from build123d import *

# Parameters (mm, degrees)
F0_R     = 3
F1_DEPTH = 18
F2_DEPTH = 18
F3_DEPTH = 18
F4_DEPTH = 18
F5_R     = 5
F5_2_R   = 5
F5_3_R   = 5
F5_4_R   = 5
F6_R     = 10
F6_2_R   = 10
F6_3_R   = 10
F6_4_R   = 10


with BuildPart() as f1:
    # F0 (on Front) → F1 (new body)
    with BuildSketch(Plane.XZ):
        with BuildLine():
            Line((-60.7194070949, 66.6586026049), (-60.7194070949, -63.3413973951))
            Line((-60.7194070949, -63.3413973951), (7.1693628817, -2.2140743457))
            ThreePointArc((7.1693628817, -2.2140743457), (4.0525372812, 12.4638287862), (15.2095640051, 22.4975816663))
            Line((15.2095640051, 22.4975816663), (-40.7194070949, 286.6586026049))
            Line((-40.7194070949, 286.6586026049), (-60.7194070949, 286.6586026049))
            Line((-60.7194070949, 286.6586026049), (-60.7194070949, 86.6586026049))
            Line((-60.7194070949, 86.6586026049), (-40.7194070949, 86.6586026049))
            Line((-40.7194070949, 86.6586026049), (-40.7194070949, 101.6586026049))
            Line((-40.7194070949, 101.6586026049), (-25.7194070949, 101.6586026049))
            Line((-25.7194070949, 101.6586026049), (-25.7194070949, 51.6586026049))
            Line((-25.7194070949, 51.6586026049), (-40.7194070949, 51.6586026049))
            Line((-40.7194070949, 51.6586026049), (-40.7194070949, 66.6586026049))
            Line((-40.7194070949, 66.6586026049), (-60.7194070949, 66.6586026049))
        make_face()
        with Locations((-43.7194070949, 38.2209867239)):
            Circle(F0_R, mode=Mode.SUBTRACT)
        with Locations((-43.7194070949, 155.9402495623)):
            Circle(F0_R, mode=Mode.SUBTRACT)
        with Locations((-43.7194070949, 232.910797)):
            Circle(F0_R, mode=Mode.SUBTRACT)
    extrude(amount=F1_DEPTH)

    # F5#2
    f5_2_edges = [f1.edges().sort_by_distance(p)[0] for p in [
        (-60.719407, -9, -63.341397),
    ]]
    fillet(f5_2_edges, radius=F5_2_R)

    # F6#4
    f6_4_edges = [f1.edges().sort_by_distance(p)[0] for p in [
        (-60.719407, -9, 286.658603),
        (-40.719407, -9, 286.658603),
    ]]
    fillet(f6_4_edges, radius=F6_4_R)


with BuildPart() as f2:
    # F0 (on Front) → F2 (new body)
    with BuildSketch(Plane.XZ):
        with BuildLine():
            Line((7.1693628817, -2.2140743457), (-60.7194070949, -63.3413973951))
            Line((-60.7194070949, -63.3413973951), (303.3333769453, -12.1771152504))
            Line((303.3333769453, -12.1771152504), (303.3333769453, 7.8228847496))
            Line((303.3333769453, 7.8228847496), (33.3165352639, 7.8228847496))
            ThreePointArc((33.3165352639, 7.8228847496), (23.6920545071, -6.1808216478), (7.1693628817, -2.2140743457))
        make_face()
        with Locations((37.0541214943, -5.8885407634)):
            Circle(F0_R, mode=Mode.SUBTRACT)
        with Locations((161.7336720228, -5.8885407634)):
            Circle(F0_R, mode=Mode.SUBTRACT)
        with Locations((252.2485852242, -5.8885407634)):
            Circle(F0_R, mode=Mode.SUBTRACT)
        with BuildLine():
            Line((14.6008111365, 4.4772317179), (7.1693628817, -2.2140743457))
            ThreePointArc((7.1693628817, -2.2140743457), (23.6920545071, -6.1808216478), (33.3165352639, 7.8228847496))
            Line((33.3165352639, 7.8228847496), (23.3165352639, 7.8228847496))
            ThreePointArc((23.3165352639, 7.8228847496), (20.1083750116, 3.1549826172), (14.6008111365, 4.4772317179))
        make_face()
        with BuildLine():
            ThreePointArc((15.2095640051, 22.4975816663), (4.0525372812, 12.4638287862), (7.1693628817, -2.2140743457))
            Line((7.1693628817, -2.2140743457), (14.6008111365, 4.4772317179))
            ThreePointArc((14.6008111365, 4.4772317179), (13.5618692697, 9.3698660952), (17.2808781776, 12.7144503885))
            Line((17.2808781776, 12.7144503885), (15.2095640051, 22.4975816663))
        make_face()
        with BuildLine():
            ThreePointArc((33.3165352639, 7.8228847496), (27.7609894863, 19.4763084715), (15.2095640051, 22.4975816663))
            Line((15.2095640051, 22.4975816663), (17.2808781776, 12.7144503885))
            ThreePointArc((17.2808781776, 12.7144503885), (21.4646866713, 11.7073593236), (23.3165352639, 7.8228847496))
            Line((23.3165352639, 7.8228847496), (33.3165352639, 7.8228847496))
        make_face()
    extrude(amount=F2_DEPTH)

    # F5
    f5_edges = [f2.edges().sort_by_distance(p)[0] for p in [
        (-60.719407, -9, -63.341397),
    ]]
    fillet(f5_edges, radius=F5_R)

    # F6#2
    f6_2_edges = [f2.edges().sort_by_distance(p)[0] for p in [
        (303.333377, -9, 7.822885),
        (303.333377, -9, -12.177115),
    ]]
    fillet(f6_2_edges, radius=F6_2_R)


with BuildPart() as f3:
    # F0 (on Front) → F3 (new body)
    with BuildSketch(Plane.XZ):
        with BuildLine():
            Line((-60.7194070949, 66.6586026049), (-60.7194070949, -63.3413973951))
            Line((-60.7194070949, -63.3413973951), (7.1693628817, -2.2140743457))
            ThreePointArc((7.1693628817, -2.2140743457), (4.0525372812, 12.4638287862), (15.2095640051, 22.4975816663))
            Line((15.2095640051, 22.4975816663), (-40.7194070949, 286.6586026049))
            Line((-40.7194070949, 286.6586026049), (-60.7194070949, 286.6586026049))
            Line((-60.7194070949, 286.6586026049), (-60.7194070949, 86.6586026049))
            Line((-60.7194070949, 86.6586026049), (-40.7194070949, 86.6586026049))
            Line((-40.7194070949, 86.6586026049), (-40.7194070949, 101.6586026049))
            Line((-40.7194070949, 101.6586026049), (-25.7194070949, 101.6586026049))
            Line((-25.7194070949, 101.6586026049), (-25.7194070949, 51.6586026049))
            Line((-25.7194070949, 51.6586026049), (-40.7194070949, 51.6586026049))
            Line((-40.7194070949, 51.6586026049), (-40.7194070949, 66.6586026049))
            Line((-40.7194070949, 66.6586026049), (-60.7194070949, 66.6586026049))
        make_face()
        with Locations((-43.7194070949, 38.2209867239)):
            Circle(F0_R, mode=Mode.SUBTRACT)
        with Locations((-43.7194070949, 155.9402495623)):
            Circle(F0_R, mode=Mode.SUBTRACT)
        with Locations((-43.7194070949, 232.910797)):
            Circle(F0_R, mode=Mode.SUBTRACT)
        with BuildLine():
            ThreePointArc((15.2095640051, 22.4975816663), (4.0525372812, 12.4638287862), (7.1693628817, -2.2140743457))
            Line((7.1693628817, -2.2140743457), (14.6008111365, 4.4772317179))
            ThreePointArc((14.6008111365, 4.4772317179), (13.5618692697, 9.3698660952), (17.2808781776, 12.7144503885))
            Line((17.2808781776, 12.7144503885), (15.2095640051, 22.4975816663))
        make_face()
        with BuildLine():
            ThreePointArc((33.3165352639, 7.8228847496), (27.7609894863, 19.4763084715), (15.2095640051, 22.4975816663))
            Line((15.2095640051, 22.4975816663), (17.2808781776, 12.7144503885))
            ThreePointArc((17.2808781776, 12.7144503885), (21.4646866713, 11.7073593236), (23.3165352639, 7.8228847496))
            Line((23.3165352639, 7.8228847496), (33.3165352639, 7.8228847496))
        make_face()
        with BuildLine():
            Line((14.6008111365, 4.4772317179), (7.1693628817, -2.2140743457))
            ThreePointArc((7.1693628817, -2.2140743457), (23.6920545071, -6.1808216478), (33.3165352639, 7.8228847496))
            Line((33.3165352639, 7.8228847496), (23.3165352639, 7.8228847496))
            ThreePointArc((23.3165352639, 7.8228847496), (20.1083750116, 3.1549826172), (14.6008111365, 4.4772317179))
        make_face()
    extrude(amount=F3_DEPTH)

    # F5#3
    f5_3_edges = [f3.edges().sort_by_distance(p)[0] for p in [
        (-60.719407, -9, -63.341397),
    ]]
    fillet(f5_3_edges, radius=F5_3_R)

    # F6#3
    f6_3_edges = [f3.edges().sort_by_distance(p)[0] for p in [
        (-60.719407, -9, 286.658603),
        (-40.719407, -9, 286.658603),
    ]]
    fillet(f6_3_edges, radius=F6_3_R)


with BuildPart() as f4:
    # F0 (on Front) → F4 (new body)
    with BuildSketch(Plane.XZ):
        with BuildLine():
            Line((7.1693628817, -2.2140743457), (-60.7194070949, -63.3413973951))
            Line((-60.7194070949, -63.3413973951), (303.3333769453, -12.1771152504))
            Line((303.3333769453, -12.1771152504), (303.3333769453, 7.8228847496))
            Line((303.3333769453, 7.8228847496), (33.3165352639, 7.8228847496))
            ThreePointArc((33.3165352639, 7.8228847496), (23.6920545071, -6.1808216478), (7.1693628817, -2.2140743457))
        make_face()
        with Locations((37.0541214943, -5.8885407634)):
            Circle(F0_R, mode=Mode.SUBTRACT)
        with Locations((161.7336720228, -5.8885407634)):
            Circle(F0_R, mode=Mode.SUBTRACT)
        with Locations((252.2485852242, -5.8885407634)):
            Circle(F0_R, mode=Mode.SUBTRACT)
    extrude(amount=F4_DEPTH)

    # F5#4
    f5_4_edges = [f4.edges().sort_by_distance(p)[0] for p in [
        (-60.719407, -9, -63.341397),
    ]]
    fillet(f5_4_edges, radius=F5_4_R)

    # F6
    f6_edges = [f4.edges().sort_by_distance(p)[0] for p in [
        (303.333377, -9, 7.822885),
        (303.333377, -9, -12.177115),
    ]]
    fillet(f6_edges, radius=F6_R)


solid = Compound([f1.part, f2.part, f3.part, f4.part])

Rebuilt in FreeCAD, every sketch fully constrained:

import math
import FreeCAD as App
import Part
import Sketcher

V = App.Vector
Q = App.Units.Quantity


def edges_at(feature, points):
    """Names of the edges that pass closest to the given points."""
    edges = feature.Shape.Edges
    near = lambda p: min(range(len(edges)), key=lambda i: edges[i].distToShape(Part.Vertex(*p))[0])
    return sorted({f"Edge{near(p) + 1}" for p in points})

doc = App.newDocument("Part")
body = doc.addObject("PartDesign::Body", "Body")

sketch1 = doc.addObject("Sketcher::SketchObject", "Sketch")
body.addObject(sketch1)
sketch1.AttachmentSupport = (doc.XZ_Plane, [""])
sketch1.MapMode = "FlatFace"
sketch1.addGeometry([
    Part.LineSegment(V(-60.7, 66.7, 0), V(-60.7, -63.3, 0)),
    Part.LineSegment(V(-60.7, -63.3, 0), V(7.2, -2.2, 0)),
    Part.ArcOfCircle(Part.Circle(V(18.3, 7.8, 0), V(0, 0, 1), 15), math.radians(102), math.radians(222)),
    Part.LineSegment(V(15.2, 22.5, 0), V(-40.7, 286.7, 0)),
    Part.LineSegment(V(-40.7, 286.7, 0), V(-60.7, 286.7, 0)),
    Part.LineSegment(V(-60.7, 286.7, 0), V(-60.7, 86.7, 0)),
    Part.LineSegment(V(-60.7, 86.7, 0), V(-40.7, 86.7, 0)),
    Part.LineSegment(V(-40.7, 86.7, 0), V(-40.7, 101.7, 0)),
    Part.LineSegment(V(-40.7, 101.7, 0), V(-25.7, 101.7, 0)),
    Part.LineSegment(V(-25.7, 101.7, 0), V(-25.7, 51.7, 0)),
    Part.LineSegment(V(-25.7, 51.7, 0), V(-40.7, 51.7, 0)),
    Part.LineSegment(V(-40.7, 51.7, 0), V(-40.7, 66.7, 0)),
    Part.LineSegment(V(-40.7, 66.7, 0), V(-60.7, 66.7, 0)),
    Part.Circle(V(-43.7, 38.2, 0), V(0, 0, 1), 3),
    Part.Circle(V(-43.7, 155.9, 0), V(0, 0, 1), 3),
    Part.Circle(V(-43.7, 232.9, 0), V(0, 0, 1), 3),
], False)
sketch1.addConstraint([
    Sketcher.Constraint("Coincident", 0, 2, 1, 1),
    Sketcher.Constraint("Coincident", 1, 2, 2, 2),
    Sketcher.Constraint("Coincident", 2, 1, 3, 1),
    Sketcher.Constraint("Coincident", 3, 2, 4, 1),
    Sketcher.Constraint("Coincident", 4, 2, 5, 1),
    Sketcher.Constraint("Coincident", 5, 2, 6, 1),
    Sketcher.Constraint("Coincident", 6, 2, 7, 1),
    Sketcher.Constraint("Coincident", 7, 2, 8, 1),
    Sketcher.Constraint("Coincident", 8, 2, 9, 1),
    Sketcher.Constraint("Coincident", 9, 2, 10, 1),
    Sketcher.Constraint("Coincident", 10, 2, 11, 1),
    Sketcher.Constraint("Coincident", 11, 2, 12, 1),
    Sketcher.Constraint("Coincident", 12, 2, 0, 1),
    Sketcher.Constraint("Vertical", 0),
    Sketcher.Constraint("Horizontal", 4),
    Sketcher.Constraint("Vertical", 5),
    Sketcher.Constraint("Horizontal", 6),
    Sketcher.Constraint("Vertical", 7),
    Sketcher.Constraint("Horizontal", 8),
    Sketcher.Constraint("Vertical", 9),
    Sketcher.Constraint("Horizontal", 10),
    Sketcher.Constraint("Vertical", 11),
    Sketcher.Constraint("Horizontal", 12),
    Sketcher.Constraint("Equal", 13, 14),
    Sketcher.Constraint("Equal", 14, 15),
    Sketcher.Constraint("Vertical", 13, 3, 14, 3),
    Sketcher.Constraint("Vertical", 14, 3, 15, 3),
    Sketcher.Constraint("Vertical", 0, 2, 4, 2),
    Sketcher.Constraint("Vertical", 3, 2, 6, 2),
    Sketcher.Constraint("Vertical", 7, 2, 10, 2),
    Sketcher.Constraint("Equal", 10, 7),
    Sketcher.Constraint("Equal", 7, 11),
    Sketcher.Constraint("Diameter", 13, 6.0),
    Sketcher.Constraint("Radius", 2, 15.0),
    Sketcher.Constraint("DistanceX", 4, 2, 4, 1, 20.0),
    Sketcher.Constraint("DistanceX", 8, 1, 8, 2, 15.0),
    Sketcher.Constraint("DistanceY", 0, 2, 0, 1, 130.0),
    Sketcher.Constraint("DistanceY", 5, 2, 5, 1, 200.0),
    Sketcher.Constraint("DistanceY", 9, 2, 9, 1, 50.0),
    Sketcher.Constraint("Angle", 1, Q("42 deg")),
    Sketcher.Constraint("DistanceX", 0, 2, 13, 3, 17.0),
    Sketcher.Constraint("DistanceY", 2, 3, 13, 3, 30.398102),
    Sketcher.Constraint("DistanceX", 1, 2, 2, 1, 8.040201),
    Sketcher.Constraint("Distance", 1, 91.353351),
    Sketcher.Constraint("Distance", 3, 270.016842),
    Sketcher.Constraint("DistanceY", -1, 1, 14, 3, 155.94025),
    Sketcher.Constraint("DistanceY", -1, 1, 2, 1, 22.497582),
    Sketcher.Constraint("DistanceY", 13, 3, 15, 3, 194.68981),
    Sketcher.Constraint("DistanceX", -1, 1, 2, 3, 18.316535),
])
pad1 = doc.addObject("PartDesign::Pad", "Pad")
body.addObject(pad1)
pad1.Profile = sketch1
pad1.Length = 18
doc.recompute()

fillet = doc.addObject("PartDesign::Fillet", "Fillet")
body.addObject(fillet)
fillet.Base = (pad1, edges_at(pad1, [(-60.719, -9, -63.341)]))
fillet.Radius = 5
doc.recompute()

fillet2 = doc.addObject("PartDesign::Fillet", "Fillet001")
body.addObject(fillet2)
fillet2.Base = (fillet, edges_at(fillet, [(-60.719, -9, 286.659), (-40.719, -9, 286.659)]))
fillet2.Radius = 10
body2 = doc.addObject("PartDesign::Body", "Body001")

sketch2 = doc.addObject("Sketcher::SketchObject", "Sketch001")
body2.addObject(sketch2)
sketch2.AttachmentSupport = (doc.getObject("XZ_Plane001"), [""])
sketch2.MapMode = "FlatFace"
sketch2.addGeometry([
    Part.LineSegment(V(7.2, -2.2, 0), V(-60.7, -63.3, 0)),
    Part.LineSegment(V(-60.7, -63.3, 0), V(303.3, -12.2, 0)),
    Part.LineSegment(V(303.3, -12.2, 0), V(303.3, 7.8, 0)),
    Part.LineSegment(V(303.3, 7.8, 0), V(33.3, 7.8, 0)),
    Part.ArcOfCircle(Part.Circle(V(18.3, 7.8, 0), V(0, 0, 1), 15), math.radians(0), math.radians(102)),
    Part.ArcOfCircle(Part.Circle(V(18.3, 7.8, 0), V(0, 0, 1), 15), math.radians(102), math.radians(222)),
    Part.ArcOfCircle(Part.Circle(V(18.3, 7.8, 0), V(0, 0, 1), 5), math.radians(-138), math.radians(0)),
    Part.ArcOfCircle(Part.Circle(V(18.3, 7.8, 0), V(0, 0, 1), 5), math.radians(102), math.radians(222)),
    Part.ArcOfCircle(Part.Circle(V(18.3, 7.8, 0), V(0, 0, 1), 5), math.radians(0), math.radians(102)),
    Part.Circle(V(37.1, -5.9, 0), V(0, 0, 1), 3),
    Part.Circle(V(161.7, -5.9, 0), V(0, 0, 1), 3),
    Part.Circle(V(252.2, -5.9, 0), V(0, 0, 1), 3),
], False)
sketch2.addConstraint([
    Sketcher.Constraint("Coincident", 0, 2, 1, 1),
    Sketcher.Constraint("Coincident", 1, 2, 2, 1),
    Sketcher.Constraint("Coincident", 2, 2, 3, 1),
    Sketcher.Constraint("Coincident", 3, 2, 4, 1),
    Sketcher.Constraint("Tangent", 4, 2, 5, 1),
    Sketcher.Constraint("Coincident", 5, 2, 0, 1),
    Sketcher.Constraint("Tangent", 6, 1, 7, 2),
    Sketcher.Constraint("Tangent", 7, 1, 8, 2),
    Sketcher.Constraint("Tangent", 8, 1, 6, 2),
    Sketcher.Constraint("Vertical", 2),
    Sketcher.Constraint("Horizontal", 3),
    Sketcher.Constraint("Coincident", 6, 3, 4, 3),
    Sketcher.Constraint("Equal", 4, 5),
    Sketcher.Constraint("Equal", 9, 10),
    Sketcher.Constraint("Equal", 10, 11),
    Sketcher.Constraint("Horizontal", 9, 3, 10, 3),
    Sketcher.Constraint("Horizontal", 10, 3, 11, 3),
    Sketcher.Constraint("Horizontal", 8, 3, 2, 2),
    Sketcher.Constraint("Horizontal", 3, 2, 8, 1),
    Sketcher.Constraint("Diameter", 9, 6.0),
    Sketcher.Constraint("Radius", 4, 15.0),
    Sketcher.Constraint("Radius", 6, 5.0),
    Sketcher.Constraint("DistanceY", 2, 1, 2, 2, 20.0),
    Sketcher.Constraint("Angle", 0, Q("-138 deg")),
    Sketcher.Constraint("Angle", 1, Q("8 deg")),
    Sketcher.Constraint("DistanceX", 3, 2, 3, 1, 270.016842),
    Sketcher.Constraint("Distance", 0, 91.353351),
    Sketcher.Constraint("DistanceX", -1, 1, 9, 3, 37.054121),
    Sketcher.Constraint("DistanceY", 9, 3, -1, 1, 5.888541),
    Sketcher.Constraint("DistanceY", -1, 1, 4, 2, 22.497582),
    Sketcher.Constraint("DistanceX", -1, 1, 6, 1, 14.600811),
    Sketcher.Constraint("DistanceY", -1, 1, 6, 1, 4.477232),
    Sketcher.Constraint("DistanceX", -1, 1, 7, 1, 17.280878),
    Sketcher.Constraint("DistanceY", -1, 1, 7, 1, 12.71445),
    Sketcher.Constraint("DistanceX", 9, 3, 10, 3, 124.679551),
    Sketcher.Constraint("DistanceX", 4, 3, 11, 3, 233.93205),
])
pad2 = doc.addObject("PartDesign::Pad", "Pad001")
body2.addObject(pad2)
pad2.Profile = sketch2
pad2.Length = 18
doc.recompute()

fillet3 = doc.addObject("PartDesign::Fillet", "Fillet002")
body2.addObject(fillet3)
fillet3.Base = (pad2, edges_at(pad2, [(-60.719, -9, -63.341)]))
fillet3.Radius = 5
doc.recompute()

fillet4 = doc.addObject("PartDesign::Fillet", "Fillet003")
body2.addObject(fillet4)
fillet4.Base = (fillet3, edges_at(fillet3, [(303.333, -9, 7.823), (303.333, -9, -12.177)]))
fillet4.Radius = 10
body3 = doc.addObject("PartDesign::Body", "Body002")

sketch3 = doc.addObject("Sketcher::SketchObject", "Sketch002")
body3.addObject(sketch3)
sketch3.AttachmentSupport = (doc.getObject("XZ_Plane002"), [""])
sketch3.MapMode = "FlatFace"
sketch3.addGeometry([
    Part.LineSegment(V(-60.7, 66.7, 0), V(-60.7, -63.3, 0)),
    Part.LineSegment(V(-60.7, -63.3, 0), V(7.2, -2.2, 0)),
    Part.ArcOfCircle(Part.Circle(V(18.3, 7.8, 0), V(0, 0, 1), 15), math.radians(-138), math.radians(0)),
    Part.ArcOfCircle(Part.Circle(V(18.3, 7.8, 0), V(0, 0, 1), 15), math.radians(0), math.radians(102)),
    Part.LineSegment(V(15.2, 22.5, 0), V(-40.7, 286.7, 0)),
    Part.LineSegment(V(-40.7, 286.7, 0), V(-60.7, 286.7, 0)),
    Part.LineSegment(V(-60.7, 286.7, 0), V(-60.7, 86.7, 0)),
    Part.LineSegment(V(-60.7, 86.7, 0), V(-40.7, 86.7, 0)),
    Part.LineSegment(V(-40.7, 86.7, 0), V(-40.7, 101.7, 0)),
    Part.LineSegment(V(-40.7, 101.7, 0), V(-25.7, 101.7, 0)),
    Part.LineSegment(V(-25.7, 101.7, 0), V(-25.7, 51.7, 0)),
    Part.LineSegment(V(-25.7, 51.7, 0), V(-40.7, 51.7, 0)),
    Part.LineSegment(V(-40.7, 51.7, 0), V(-40.7, 66.7, 0)),
    Part.LineSegment(V(-40.7, 66.7, 0), V(-60.7, 66.7, 0)),
    Part.ArcOfCircle(Part.Circle(V(18.3, 7.8, 0), V(0, 0, 1), 5), math.radians(102), math.radians(222)),
    Part.ArcOfCircle(Part.Circle(V(18.3, 7.8, 0), V(0, 0, 1), 5), math.radians(0), math.radians(102)),
    Part.ArcOfCircle(Part.Circle(V(18.3, 7.8, 0), V(0, 0, 1), 5), math.radians(-138), math.radians(0)),
    Part.Circle(V(-43.7, 38.2, 0), V(0, 0, 1), 3),
    Part.Circle(V(-43.7, 155.9, 0), V(0, 0, 1), 3),
    Part.Circle(V(-43.7, 232.9, 0), V(0, 0, 1), 3),
], False)
sketch3.addConstraint([
    Sketcher.Constraint("Coincident", 0, 2, 1, 1),
    Sketcher.Constraint("Coincident", 1, 2, 2, 1),
    Sketcher.Constraint("Tangent", 2, 2, 3, 1),
    Sketcher.Constraint("Coincident", 3, 2, 4, 1),
    Sketcher.Constraint("Coincident", 4, 2, 5, 1),
    Sketcher.Constraint("Coincident", 5, 2, 6, 1),
    Sketcher.Constraint("Coincident", 6, 2, 7, 1),
    Sketcher.Constraint("Coincident", 7, 2, 8, 1),
    Sketcher.Constraint("Coincident", 8, 2, 9, 1),
    Sketcher.Constraint("Coincident", 9, 2, 10, 1),
    Sketcher.Constraint("Coincident", 10, 2, 11, 1),
    Sketcher.Constraint("Coincident", 11, 2, 12, 1),
    Sketcher.Constraint("Coincident", 12, 2, 13, 1),
    Sketcher.Constraint("Coincident", 13, 2, 0, 1),
    Sketcher.Constraint("Tangent", 14, 1, 15, 2),
    Sketcher.Constraint("Tangent", 15, 1, 16, 2),
    Sketcher.Constraint("Tangent", 16, 1, 14, 2),
    Sketcher.Constraint("Vertical", 0),
    Sketcher.Constraint("Horizontal", 5),
    Sketcher.Constraint("Vertical", 6),
    Sketcher.Constraint("Horizontal", 7),
    Sketcher.Constraint("Vertical", 8),
    Sketcher.Constraint("Horizontal", 9),
    Sketcher.Constraint("Vertical", 10),
    Sketcher.Constraint("Horizontal", 11),
    Sketcher.Constraint("Vertical", 12),
    Sketcher.Constraint("Horizontal", 13),
    Sketcher.Constraint("Coincident", 14, 3, 2, 3),
    Sketcher.Constraint("Equal", 2, 3),
    Sketcher.Constraint("Equal", 17, 18),
    Sketcher.Constraint("Equal", 18, 19),
    Sketcher.Constraint("Horizontal", 16, 3, 2, 2),
    Sketcher.Constraint("Horizontal", 2, 2, 15, 1),
    Sketcher.Constraint("Vertical", 17, 3, 18, 3),
    Sketcher.Constraint("Vertical", 18, 3, 19, 3),
    Sketcher.Constraint("Vertical", 0, 2, 5, 2),
    Sketcher.Constraint("Vertical", 4, 2, 7, 2),
    Sketcher.Constraint("Vertical", 8, 2, 11, 2),
    Sketcher.Constraint("Equal", 11, 8),
    Sketcher.Constraint("Equal", 8, 12),
    Sketcher.Constraint("Diameter", 17, 6.0),
    Sketcher.Constraint("Radius", 2, 15.0),
    Sketcher.Constraint("Radius", 14, 5.0),
    Sketcher.Constraint("DistanceX", 5, 2, 5, 1, 20.0),
    Sketcher.Constraint("DistanceX", 9, 1, 9, 2, 15.0),
    Sketcher.Constraint("DistanceY", 0, 2, 0, 1, 130.0),
    Sketcher.Constraint("DistanceY", 6, 2, 6, 1, 200.0),
    Sketcher.Constraint("DistanceY", 10, 2, 10, 1, 50.0),
    Sketcher.Constraint("Angle", 1, Q("42 deg")),
    Sketcher.Constraint("DistanceX", 0, 2, 17, 3, 17.0),
    Sketcher.Constraint("DistanceY", 2, 3, 17, 3, 30.398102),
    Sketcher.Constraint("Distance", 1, 91.353351),
    Sketcher.Constraint("Distance", 4, 270.016842),
    Sketcher.Constraint("DistanceY", -1, 1, 18, 3, 155.94025),
    Sketcher.Constraint("DistanceY", -1, 1, 3, 2, 22.497582),
    Sketcher.Constraint("DistanceX", -1, 1, 14, 1, 17.280878),
    Sketcher.Constraint("DistanceY", -1, 1, 14, 1, 12.71445),
    Sketcher.Constraint("DistanceX", -1, 1, 16, 1, 14.600811),
    Sketcher.Constraint("DistanceY", -1, 1, 16, 1, 4.477232),
    Sketcher.Constraint("DistanceY", 17, 3, 19, 3, 194.68981),
])
pad3 = doc.addObject("PartDesign::Pad", "Pad002")
body3.addObject(pad3)
pad3.Profile = sketch3
pad3.Length = 18
doc.recompute()

fillet5 = doc.addObject("PartDesign::Fillet", "Fillet004")
body3.addObject(fillet5)
fillet5.Base = (pad3, edges_at(pad3, [(-60.719, -9, -63.341)]))
fillet5.Radius = 5
doc.recompute()

fillet6 = doc.addObject("PartDesign::Fillet", "Fillet005")
body3.addObject(fillet6)
fillet6.Base = (fillet5, edges_at(fillet5, [(-60.719, -9, 286.659), (-40.719, -9, 286.659)]))
fillet6.Radius = 10
body4 = doc.addObject("PartDesign::Body", "Body003")

sketch4 = doc.addObject("Sketcher::SketchObject", "Sketch003")
body4.addObject(sketch4)
sketch4.AttachmentSupport = (doc.getObject("XZ_Plane003"), [""])
sketch4.MapMode = "FlatFace"
sketch4.addGeometry([
    Part.LineSegment(V(7.2, -2.2, 0), V(-60.7, -63.3, 0)),
    Part.LineSegment(V(-60.7, -63.3, 0), V(303.3, -12.2, 0)),
    Part.LineSegment(V(303.3, -12.2, 0), V(303.3, 7.8, 0)),
    Part.LineSegment(V(303.3, 7.8, 0), V(33.3, 7.8, 0)),
    Part.ArcOfCircle(Part.Circle(V(18.3, 7.8, 0), V(0, 0, 1), 15), math.radians(-138), math.radians(0)),
    Part.Circle(V(37.1, -5.9, 0), V(0, 0, 1), 3),
    Part.Circle(V(161.7, -5.9, 0), V(0, 0, 1), 3),
    Part.Circle(V(252.2, -5.9, 0), V(0, 0, 1), 3),
], False)
sketch4.addConstraint([
    Sketcher.Constraint("Coincident", 0, 2, 1, 1),
    Sketcher.Constraint("Coincident", 1, 2, 2, 1),
    Sketcher.Constraint("Coincident", 2, 2, 3, 1),
    Sketcher.Constraint("Coincident", 3, 2, 4, 2),
    Sketcher.Constraint("Coincident", 4, 1, 0, 1),
    Sketcher.Constraint("Vertical", 2),
    Sketcher.Constraint("Horizontal", 3),
    Sketcher.Constraint("Equal", 5, 6),
    Sketcher.Constraint("Equal", 6, 7),
    Sketcher.Constraint("Horizontal", 5, 3, 6, 3),
    Sketcher.Constraint("Horizontal", 6, 3, 7, 3),
    Sketcher.Constraint("Horizontal", 4, 3, 2, 2),
    Sketcher.Constraint("Diameter", 5, 6.0),
    Sketcher.Constraint("Radius", 4, 15.0),
    Sketcher.Constraint("DistanceY", 2, 1, 2, 2, 20.0),
    Sketcher.Constraint("Angle", 0, Q("-138 deg")),
    Sketcher.Constraint("Angle", 1, Q("8 deg")),
    Sketcher.Constraint("DistanceX", 3, 2, 3, 1, 270.016842),
    Sketcher.Constraint("Distance", 0, 91.353351),
    Sketcher.Constraint("DistanceX", -1, 1, 5, 3, 37.054121),
    Sketcher.Constraint("DistanceY", 5, 3, -1, 1, 5.888541),
    Sketcher.Constraint("DistanceX", 5, 3, 6, 3, 124.679551),
    Sketcher.Constraint("DistanceX", 4, 3, 7, 3, 233.93205),
    Sketcher.Constraint("DistanceX", 0, 2, 5, 3, 97.773529),
    Sketcher.Constraint("DistanceY", -1, 1, 4, 3, 7.822885),
])
pad4 = doc.addObject("PartDesign::Pad", "Pad003")
body4.addObject(pad4)
pad4.Profile = sketch4
pad4.Length = 18
doc.recompute()

fillet7 = doc.addObject("PartDesign::Fillet", "Fillet006")
body4.addObject(fillet7)
fillet7.Base = (pad4, edges_at(pad4, [(-60.719, -9, -63.341)]))
fillet7.Radius = 5
doc.recompute()

fillet8 = doc.addObject("PartDesign::Fillet", "Fillet007")
body4.addObject(fillet8)
fillet8.Base = (fillet7, edges_at(fillet7, [(303.333, -9, 7.823), (303.333, -9, -12.177)]))
fillet8.Radius = 10

doc.recompute()
